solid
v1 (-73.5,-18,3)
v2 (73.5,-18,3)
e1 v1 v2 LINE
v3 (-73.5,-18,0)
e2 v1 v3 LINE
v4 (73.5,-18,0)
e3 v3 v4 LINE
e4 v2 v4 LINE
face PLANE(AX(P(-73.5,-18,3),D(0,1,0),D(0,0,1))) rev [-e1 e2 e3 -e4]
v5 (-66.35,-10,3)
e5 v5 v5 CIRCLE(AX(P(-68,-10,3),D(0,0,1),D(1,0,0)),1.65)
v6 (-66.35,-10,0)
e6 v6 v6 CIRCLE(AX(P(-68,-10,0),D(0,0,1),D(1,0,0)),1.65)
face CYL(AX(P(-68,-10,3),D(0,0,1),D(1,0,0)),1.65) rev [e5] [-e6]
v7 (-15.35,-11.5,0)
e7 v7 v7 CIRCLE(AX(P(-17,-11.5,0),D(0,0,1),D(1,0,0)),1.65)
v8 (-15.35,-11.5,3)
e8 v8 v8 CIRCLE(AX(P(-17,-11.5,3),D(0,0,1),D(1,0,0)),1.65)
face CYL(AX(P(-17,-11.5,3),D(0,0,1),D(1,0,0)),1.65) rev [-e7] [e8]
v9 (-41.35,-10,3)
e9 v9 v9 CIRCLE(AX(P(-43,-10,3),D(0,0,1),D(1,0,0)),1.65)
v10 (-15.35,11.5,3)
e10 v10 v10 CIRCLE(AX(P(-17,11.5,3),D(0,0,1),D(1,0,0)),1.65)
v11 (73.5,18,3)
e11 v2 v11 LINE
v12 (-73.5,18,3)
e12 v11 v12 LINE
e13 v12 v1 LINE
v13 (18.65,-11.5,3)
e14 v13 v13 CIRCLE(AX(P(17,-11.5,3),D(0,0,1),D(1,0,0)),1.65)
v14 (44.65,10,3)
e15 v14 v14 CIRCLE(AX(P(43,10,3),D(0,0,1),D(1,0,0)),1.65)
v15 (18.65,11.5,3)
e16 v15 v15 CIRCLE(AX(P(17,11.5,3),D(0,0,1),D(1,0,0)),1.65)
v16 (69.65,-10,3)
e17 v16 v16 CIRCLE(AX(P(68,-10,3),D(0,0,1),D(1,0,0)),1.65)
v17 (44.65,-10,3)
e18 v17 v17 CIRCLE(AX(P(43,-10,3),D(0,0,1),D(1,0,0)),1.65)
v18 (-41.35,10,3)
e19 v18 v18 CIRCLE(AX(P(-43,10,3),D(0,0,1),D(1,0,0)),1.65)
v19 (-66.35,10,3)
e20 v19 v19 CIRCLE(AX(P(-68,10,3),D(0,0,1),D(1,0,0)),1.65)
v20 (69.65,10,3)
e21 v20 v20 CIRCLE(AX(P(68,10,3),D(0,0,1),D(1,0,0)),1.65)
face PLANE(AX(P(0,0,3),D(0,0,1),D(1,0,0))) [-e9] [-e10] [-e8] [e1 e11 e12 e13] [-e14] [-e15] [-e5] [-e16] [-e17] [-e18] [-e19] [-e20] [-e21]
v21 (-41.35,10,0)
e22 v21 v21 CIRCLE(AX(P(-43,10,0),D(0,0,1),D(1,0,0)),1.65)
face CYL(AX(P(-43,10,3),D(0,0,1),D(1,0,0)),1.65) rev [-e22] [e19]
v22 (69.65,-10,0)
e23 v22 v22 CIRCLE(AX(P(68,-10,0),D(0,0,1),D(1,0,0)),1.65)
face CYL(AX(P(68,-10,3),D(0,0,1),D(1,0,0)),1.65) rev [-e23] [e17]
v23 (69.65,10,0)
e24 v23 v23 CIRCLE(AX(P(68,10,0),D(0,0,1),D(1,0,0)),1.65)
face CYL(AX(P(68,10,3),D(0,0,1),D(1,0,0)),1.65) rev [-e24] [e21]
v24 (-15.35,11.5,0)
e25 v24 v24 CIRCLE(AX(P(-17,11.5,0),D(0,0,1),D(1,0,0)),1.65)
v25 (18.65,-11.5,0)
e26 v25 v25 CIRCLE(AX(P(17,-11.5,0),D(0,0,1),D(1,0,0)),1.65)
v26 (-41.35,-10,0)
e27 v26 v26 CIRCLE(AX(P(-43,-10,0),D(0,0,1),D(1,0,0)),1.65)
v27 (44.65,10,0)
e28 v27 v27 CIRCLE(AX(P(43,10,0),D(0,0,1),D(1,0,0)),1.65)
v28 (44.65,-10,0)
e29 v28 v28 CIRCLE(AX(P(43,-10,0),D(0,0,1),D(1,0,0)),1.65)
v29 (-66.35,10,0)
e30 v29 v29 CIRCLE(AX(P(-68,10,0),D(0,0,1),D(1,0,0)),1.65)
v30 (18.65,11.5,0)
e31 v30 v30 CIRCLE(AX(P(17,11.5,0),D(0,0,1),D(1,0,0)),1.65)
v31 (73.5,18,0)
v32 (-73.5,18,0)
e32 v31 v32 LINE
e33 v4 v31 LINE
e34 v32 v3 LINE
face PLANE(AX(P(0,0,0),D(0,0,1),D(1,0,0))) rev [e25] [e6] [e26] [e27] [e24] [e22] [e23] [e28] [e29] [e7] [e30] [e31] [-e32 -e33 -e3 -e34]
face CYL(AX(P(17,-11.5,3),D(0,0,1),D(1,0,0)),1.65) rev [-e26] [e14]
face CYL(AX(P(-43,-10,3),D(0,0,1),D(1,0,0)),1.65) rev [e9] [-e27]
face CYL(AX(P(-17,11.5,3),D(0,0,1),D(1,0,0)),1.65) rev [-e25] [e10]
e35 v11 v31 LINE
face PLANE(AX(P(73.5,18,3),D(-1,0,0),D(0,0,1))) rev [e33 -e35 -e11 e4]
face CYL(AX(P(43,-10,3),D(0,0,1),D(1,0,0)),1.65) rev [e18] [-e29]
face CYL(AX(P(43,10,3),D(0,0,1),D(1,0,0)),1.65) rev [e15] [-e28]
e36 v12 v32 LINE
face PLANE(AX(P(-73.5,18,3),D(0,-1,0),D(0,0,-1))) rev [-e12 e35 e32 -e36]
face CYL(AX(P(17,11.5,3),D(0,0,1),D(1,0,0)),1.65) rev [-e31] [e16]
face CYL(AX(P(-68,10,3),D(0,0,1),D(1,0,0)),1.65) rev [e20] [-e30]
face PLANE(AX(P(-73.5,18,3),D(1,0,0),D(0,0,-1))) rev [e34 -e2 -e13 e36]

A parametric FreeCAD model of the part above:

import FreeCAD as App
import Part
import Sketcher
from FreeCAD import Vector
Q = App.Units.Quantity


def add_polygon(sketch, points):
    """Adds a closed chain of lines whose ends are joined by coincident constraints."""
    first, n = sketch.GeometryCount, len(points)
    for a, b in zip(points, points[1:] + points[:1]):
        sketch.addGeometry(Part.LineSegment(App.Vector(*a, 0), App.Vector(*b, 0)), False)
    for i in range(n):
        sketch.addConstraint(Sketcher.Constraint("Coincident", first + i, 2, first + (i + 1) % n, 1))

doc = App.newDocument("Part")
body = doc.addObject("PartDesign::Body", "Body")

# Sketch on XY plane
sketch1 = doc.addObject("Sketcher::SketchObject", "Sketch")
body.addObject(sketch1)
sketch1.AttachmentSupport = (doc.XY_Plane, [""])
sketch1.MapMode = "FlatFace"
add_polygon(sketch1, [(-74, 18), (-74, -18), (74, -18), (74, 18)])  # lines 0-3
sketch1.addConstraint([
    Sketcher.Constraint("Vertical", 0),
    Sketcher.Constraint("Horizontal", 1),
    Sketcher.Constraint("Vertical", 2),
    Sketcher.Constraint("Horizontal", 3),
    Sketcher.Constraint("Symmetric", 0, 2, 2, 2, -1, 1),
    Sketcher.Constraint("DistanceX", 1, 1, 1, 2, Q("147 mm")),
    Sketcher.Constraint("DistanceY", 0, 2, 0, 1, Q("36 mm")),
])
pad1 = doc.addObject("PartDesign::Pad", "Pad")
body.addObject(pad1)
pad1.Profile = sketch1
pad1.Length = 3

# Sketch on YZ plane
sketch2 = doc.addObject("Sketcher::SketchObject", "Sketch001")
body.addObject(sketch2)
sketch2.AttachmentSupport = (doc.YZ_Plane, [""])
sketch2.MapMode = "FlatFace"
sketch2.AttachmentOffset = App.Placement(Vector(0, 0, -17), App.Rotation())
add_polygon(sketch2, [(11.5, -8), (11.5, 3), (9.8, 3), (9.8, -7)])  # lines 0-3
sketch2.addGeometry(Part.LineSegment(Vector(11.5, 3, 0), Vector(11.5, -8, 0)), True)  # axis
sketch2.addConstraint([
    Sketcher.Constraint("Vertical", 0),
    Sketcher.Constraint("Horizontal", 1),
    Sketcher.Constraint("Vertical", 2),
    Sketcher.Constraint("Vertical", 4),
    Sketcher.Constraint("Coincident", 4, 1, 0, 2),
    Sketcher.Constraint("Equal", 0, 4),
    Sketcher.Constraint("DistanceY", 2, 2, 2, 1, Q("10 mm")),
    Sketcher.Constraint("Angle", 3, Q("-31 deg")),
    Sketcher.Constraint("DistanceY", -1, 1, 0, 2, Q("3 mm")),
    Sketcher.Constraint("DistanceX", 1, 2, 1, 1, Q("1.65 mm")),
    Sketcher.Constraint("DistanceX", -1, 1, 0, 2, Q("11.5 mm")),
])
groove = doc.addObject("PartDesign::Groove", "Groove")
body.addObject(groove)
groove.Profile = sketch2
groove.ReferenceAxis = (sketch2, ["Axis0"])
groove.Angle = 360
doc.recompute()

mirrored = doc.addObject("PartDesign::Mirrored", "Mirrored")
body.addObject(mirrored)
mirrored.Originals = [groove]
mirrored.MirrorPlane = (doc.XZ_Plane, [""])
body.Tip = mirrored
doc.recompute()

mirrored2 = doc.addObject("PartDesign::Mirrored", "Mirrored001")
body.addObject(mirrored2)
mirrored2.Originals = [groove]
mirrored2.MirrorPlane = (doc.YZ_Plane, [""])
body.Tip = mirrored2

# Sketch on YZ plane
sketch3 = doc.addObject("Sketcher::SketchObject", "Sketch002")
body.addObject(sketch3)
sketch3.AttachmentSupport = (doc.YZ_Plane, [""])
sketch3.MapMode = "FlatFace"
sketch3.AttachmentOffset = App.Placement(Vector(0, 0, 17), App.Rotation())
add_polygon(sketch3, [(-11.5, -8), (-11.5, 3), (-9.8, 3), (-9.8, -7)])  # lines 0-3
sketch3.addGeometry(Part.LineSegment(Vector(-11.5, 3, 0), Vector(-11.5, -8, 0)), True)  # axis
sketch3.addConstraint([
    Sketcher.Constraint("Vertical", 0),
    Sketcher.Constraint("Horizontal", 1),
    Sketcher.Constraint("Vertical", 2),
    Sketcher.Constraint("Vertical", 4),
    Sketcher.Constraint("Coincident", 4, 1, 0, 2),
    Sketcher.Constraint("Equal", 0, 4),
    Sketcher.Constraint("DistanceY", 2, 2, 2, 1, Q("10 mm")),
    Sketcher.Constraint("Angle", 3, Q("-149 deg")),
    Sketcher.Constraint("DistanceY", -1, 1, 0, 2, Q("3 mm")),
    Sketcher.Constraint("DistanceX", 1, 1, 1, 2, Q("1.65 mm")),
    Sketcher.Constraint("DistanceX", 0, 2, -1, 1, Q("11.5 mm")),
])
groove2 = doc.addObject("PartDesign::Groove", "Groove001")
body.addObject(groove2)
groove2.Profile = sketch3
groove2.ReferenceAxis = (sketch3, ["Axis0"])
groove2.Angle = 360

# Sketch on YZ plane
sketch4 = doc.addObject("Sketcher::SketchObject", "Sketch003")
body.addObject(sketch4)
sketch4.AttachmentSupport = (doc.YZ_Plane, [""])
sketch4.MapMode = "FlatFace"
sketch4.AttachmentOffset = App.Placement(Vector(0, 0, -68), App.Rotation())
add_polygon(sketch4, [(-10, -8), (-10, 3), (-11.7, 3), (-11.7, -7)])  # lines 0-3
sketch4.addGeometry(Part.LineSegment(Vector(-10, 3, 0), Vector(-10, -8, 0)), True)  # axis
sketch4.addConstraint([
    Sketcher.Constraint("Vertical", 0),
    Sketcher.Constraint("Horizontal", 1),
    Sketcher.Constraint("Vertical", 2),
    Sketcher.Constraint("Vertical", 4),
    Sketcher.Constraint("Coincident", 4, 1, 0, 2),
    Sketcher.Constraint("Equal", 0, 4),
    Sketcher.Constraint("DistanceY", 2, 2, 2, 1, Q("10 mm")),
    Sketcher.Constraint("Angle", 3, Q("-31 deg")),
    Sketcher.Constraint("DistanceX", 0, 2, -1, 1, Q("10 mm")),
    Sketcher.Constraint("DistanceY", -1, 1, 0, 2, Q("3 mm")),
    Sketcher.Constraint("DistanceX", 1, 2, 1, 1, Q("1.65 mm")),
])
groove3 = doc.addObject("PartDesign::Groove", "Groove002")
body.addObject(groove3)
groove3.Profile = sketch4
groove3.ReferenceAxis = (sketch4, ["Axis0"])
groove3.Angle = 360
doc.recompute()

linearpattern = doc.addObject("PartDesign::LinearPattern", "LinearPattern")
body.addObject(linearpattern)
linearpattern.Originals = [groove3]
linearpattern.Direction = (doc.X_Axis, [""])
linearpattern.Mode = "offset"
linearpattern.Offset = 25
linearpattern.Occurrences = 2
body.Tip = linearpattern
doc.recompute()

mirrored3 = doc.addObject("PartDesign::Mirrored", "Mirrored002")
body.addObject(mirrored3)
mirrored3.Originals = [groove3]
mirrored3.MirrorPlane = (doc.XZ_Plane, [""])
body.Tip = mirrored3

# Sketch on YZ plane
sketch5 = doc.addObject("Sketcher::SketchObject", "Sketch004")
body.addObject(sketch5)
sketch5.AttachmentSupport = (doc.YZ_Plane, [""])
sketch5.MapMode = "FlatFace"
sketch5.AttachmentOffset = App.Placement(Vector(0, 0, -43), App.Rotation())
add_polygon(sketch5, [(10, 3), (10, -8), (11.7, -7), (11.7, 3)])  # lines 0-3
sketch5.addGeometry(Part.LineSegment(Vector(10, -8, 0), Vector(10, 3, 0)), True)  # axis
sketch5.addConstraint([
    Sketcher.Constraint("Vertical", 0),
    Sketcher.Constraint("Vertical", 2),
    Sketcher.Constraint("Horizontal", 3),
    Sketcher.Constraint("Vertical", 4),
    Sketcher.Constraint("Coincident", 4, 1, 0, 2),
    Sketcher.Constraint("Horizontal", 2, 2, 4, 2),
    Sketcher.Constraint("DistanceY", 2, 1, 2, 2, Q("10 mm")),
    Sketcher.Constraint("Angle", 1, Q("31 deg")),
    Sketcher.Constraint("DistanceX", -1, 1, 0, 2, Q("10 mm")),
    Sketcher.Constraint("DistanceY", 1, 2, -1, 1, Q("7 mm")),
    Sketcher.Constraint("DistanceX", 3, 2, 3, 1, Q("1.65 mm")),
])
groove4 = doc.addObject("PartDesign::Groove", "Groove003")
body.addObject(groove4)
groove4.Profile = sketch5
groove4.ReferenceAxis = (sketch5, ["Axis0"])
groove4.Angle = 360
doc.recompute()

mirrored4 = doc.addObject("PartDesign::Mirrored", "Mirrored003")
body.addObject(mirrored4)
mirrored4.Originals = [groove3]
mirrored4.MirrorPlane = (doc.YZ_Plane, [""])
body.Tip = mirrored4

# Sketch on YZ plane
sketch6 = doc.addObject("Sketcher::SketchObject", "Sketch005")
body.addObject(sketch6)
sketch6.AttachmentSupport = (doc.YZ_Plane, [""])
sketch6.MapMode = "FlatFace"
sketch6.AttachmentOffset = App.Placement(Vector(0, 0, 43), App.Rotation())
add_polygon(sketch6, [(-10, 3), (-10, -8), (-11.7, -7), (-11.7, 3)])  # lines 0-3
sketch6.addGeometry(Part.LineSegment(Vector(-10, -8, 0), Vector(-10, 3, 0)), True)  # axis
sketch6.addConstraint([
    Sketcher.Constraint("Vertical", 0),
    Sketcher.Constraint("Vertical", 2),
    Sketcher.Constraint("Horizontal", 3),
    Sketcher.Constraint("Vertical", 4),
    Sketcher.Constraint("Coincident", 4, 1, 0, 2),
    Sketcher.Constraint("Horizontal", 2, 2, 4, 2),
    Sketcher.Constraint("DistanceY", 2, 1, 2, 2, Q("10 mm")),
    Sketcher.Constraint("Angle", 1, Q("149 deg")),
    Sketcher.Constraint("DistanceX", 0, 2, -1, 1, Q("10 mm")),
    Sketcher.Constraint("DistanceY", 1, 2, -1, 1, Q("7 mm")),
    Sketcher.Constraint("DistanceX", 3, 1, 3, 2, Q("1.65 mm")),
])
groove5 = doc.addObject("PartDesign::Groove", "Groove004")
body.addObject(groove5)
groove5.Profile = sketch6
groove5.ReferenceAxis = (sketch6, ["Axis0"])
groove5.Angle = 360

# Sketch on YZ plane
sketch7 = doc.addObject("Sketcher::SketchObject", "Sketch006")
body.addObject(sketch7)
sketch7.AttachmentSupport = (doc.YZ_Plane, [""])
sketch7.MapMode = "FlatFace"
sketch7.AttachmentOffset = App.Placement(Vector(0, 0, 68), App.Rotation())
add_polygon(sketch7, [(10, -8), (10, 3), (11.7, 3), (11.7, -7)])  # lines 0-3
sketch7.addGeometry(Part.LineSegment(Vector(10, 3, 0), Vector(10, -8, 0)), True)  # axis
sketch7.addConstraint([
    Sketcher.Constraint("Vertical", 0),
    Sketcher.Constraint("Horizontal", 1),
    Sketcher.Constraint("Vertical", 2),
    Sketcher.Constraint("Vertical", 4),
    Sketcher.Constraint("Coincident", 4, 1, 0, 2),
    Sketcher.Constraint("Equal", 0, 4),
    Sketcher.Constraint("DistanceY", 2, 2, 2, 1, Q("10 mm")),
    Sketcher.Constraint("Angle", 3, Q("-149 deg")),
    Sketcher.Constraint("DistanceX", -1, 1, 0, 2, Q("10 mm")),
    Sketcher.Constraint("DistanceY", -1, 1, 0, 2, Q("3 mm")),
    Sketcher.Constraint("DistanceX", 1, 1, 1, 2, Q("1.65 mm")),
])
groove6 = doc.addObject("PartDesign::Groove", "Groove005")
body.addObject(groove6)
groove6.Profile = sketch7
groove6.ReferenceAxis = (sketch7, ["Axis0"])
groove6.Angle = 360

# Sketch on YZ plane
sketch8 = doc.addObject("Sketcher::SketchObject", "Sketch007")
body.addObject(sketch8)
sketch8.AttachmentSupport = (doc.YZ_Plane, [""])
sketch8.MapMode = "FlatFace"
sketch8.AttachmentOffset = App.Placement(Vector(0, 0, 43), App.Rotation())
add_polygon(sketch8, [(10, -8), (10, 3), (11.7, 3), (11.7, -7)])  # lines 0-3
sketch8.addGeometry(Part.LineSegment(Vector(10, 3, 0), Vector(10, -8, 0)), True)  # axis
sketch8.addConstraint([
    Sketcher.Constraint("Vertical", 0),
    Sketcher.Constraint("Horizontal", 1),
    Sketcher.Constraint("Vertical", 2),
    Sketcher.Constraint("Vertical", 4),
    Sketcher.Constraint("Coincident", 4, 1, 0, 2),
    Sketcher.Constraint("Equal", 0, 4),
    Sketcher.Constraint("DistanceY", 2, 2, 2, 1, Q("10 mm")),
    Sketcher.Constraint("Angle", 3, Q("-149 deg")),
    Sketcher.Constraint("DistanceX", -1, 1, 0, 2, Q("10 mm")),
    Sketcher.Constraint("DistanceY", -1, 1, 0, 2, Q("3 mm")),
    Sketcher.Constraint("DistanceX", 1, 1, 1, 2, Q("1.65 mm")),
])
groove7 = doc.addObject("PartDesign::Groove", "Groove006")
body.addObject(groove7)
groove7.Profile = sketch8
groove7.ReferenceAxis = (sketch8, ["Axis0"])
groove7.Angle = 360

doc.recompute()
